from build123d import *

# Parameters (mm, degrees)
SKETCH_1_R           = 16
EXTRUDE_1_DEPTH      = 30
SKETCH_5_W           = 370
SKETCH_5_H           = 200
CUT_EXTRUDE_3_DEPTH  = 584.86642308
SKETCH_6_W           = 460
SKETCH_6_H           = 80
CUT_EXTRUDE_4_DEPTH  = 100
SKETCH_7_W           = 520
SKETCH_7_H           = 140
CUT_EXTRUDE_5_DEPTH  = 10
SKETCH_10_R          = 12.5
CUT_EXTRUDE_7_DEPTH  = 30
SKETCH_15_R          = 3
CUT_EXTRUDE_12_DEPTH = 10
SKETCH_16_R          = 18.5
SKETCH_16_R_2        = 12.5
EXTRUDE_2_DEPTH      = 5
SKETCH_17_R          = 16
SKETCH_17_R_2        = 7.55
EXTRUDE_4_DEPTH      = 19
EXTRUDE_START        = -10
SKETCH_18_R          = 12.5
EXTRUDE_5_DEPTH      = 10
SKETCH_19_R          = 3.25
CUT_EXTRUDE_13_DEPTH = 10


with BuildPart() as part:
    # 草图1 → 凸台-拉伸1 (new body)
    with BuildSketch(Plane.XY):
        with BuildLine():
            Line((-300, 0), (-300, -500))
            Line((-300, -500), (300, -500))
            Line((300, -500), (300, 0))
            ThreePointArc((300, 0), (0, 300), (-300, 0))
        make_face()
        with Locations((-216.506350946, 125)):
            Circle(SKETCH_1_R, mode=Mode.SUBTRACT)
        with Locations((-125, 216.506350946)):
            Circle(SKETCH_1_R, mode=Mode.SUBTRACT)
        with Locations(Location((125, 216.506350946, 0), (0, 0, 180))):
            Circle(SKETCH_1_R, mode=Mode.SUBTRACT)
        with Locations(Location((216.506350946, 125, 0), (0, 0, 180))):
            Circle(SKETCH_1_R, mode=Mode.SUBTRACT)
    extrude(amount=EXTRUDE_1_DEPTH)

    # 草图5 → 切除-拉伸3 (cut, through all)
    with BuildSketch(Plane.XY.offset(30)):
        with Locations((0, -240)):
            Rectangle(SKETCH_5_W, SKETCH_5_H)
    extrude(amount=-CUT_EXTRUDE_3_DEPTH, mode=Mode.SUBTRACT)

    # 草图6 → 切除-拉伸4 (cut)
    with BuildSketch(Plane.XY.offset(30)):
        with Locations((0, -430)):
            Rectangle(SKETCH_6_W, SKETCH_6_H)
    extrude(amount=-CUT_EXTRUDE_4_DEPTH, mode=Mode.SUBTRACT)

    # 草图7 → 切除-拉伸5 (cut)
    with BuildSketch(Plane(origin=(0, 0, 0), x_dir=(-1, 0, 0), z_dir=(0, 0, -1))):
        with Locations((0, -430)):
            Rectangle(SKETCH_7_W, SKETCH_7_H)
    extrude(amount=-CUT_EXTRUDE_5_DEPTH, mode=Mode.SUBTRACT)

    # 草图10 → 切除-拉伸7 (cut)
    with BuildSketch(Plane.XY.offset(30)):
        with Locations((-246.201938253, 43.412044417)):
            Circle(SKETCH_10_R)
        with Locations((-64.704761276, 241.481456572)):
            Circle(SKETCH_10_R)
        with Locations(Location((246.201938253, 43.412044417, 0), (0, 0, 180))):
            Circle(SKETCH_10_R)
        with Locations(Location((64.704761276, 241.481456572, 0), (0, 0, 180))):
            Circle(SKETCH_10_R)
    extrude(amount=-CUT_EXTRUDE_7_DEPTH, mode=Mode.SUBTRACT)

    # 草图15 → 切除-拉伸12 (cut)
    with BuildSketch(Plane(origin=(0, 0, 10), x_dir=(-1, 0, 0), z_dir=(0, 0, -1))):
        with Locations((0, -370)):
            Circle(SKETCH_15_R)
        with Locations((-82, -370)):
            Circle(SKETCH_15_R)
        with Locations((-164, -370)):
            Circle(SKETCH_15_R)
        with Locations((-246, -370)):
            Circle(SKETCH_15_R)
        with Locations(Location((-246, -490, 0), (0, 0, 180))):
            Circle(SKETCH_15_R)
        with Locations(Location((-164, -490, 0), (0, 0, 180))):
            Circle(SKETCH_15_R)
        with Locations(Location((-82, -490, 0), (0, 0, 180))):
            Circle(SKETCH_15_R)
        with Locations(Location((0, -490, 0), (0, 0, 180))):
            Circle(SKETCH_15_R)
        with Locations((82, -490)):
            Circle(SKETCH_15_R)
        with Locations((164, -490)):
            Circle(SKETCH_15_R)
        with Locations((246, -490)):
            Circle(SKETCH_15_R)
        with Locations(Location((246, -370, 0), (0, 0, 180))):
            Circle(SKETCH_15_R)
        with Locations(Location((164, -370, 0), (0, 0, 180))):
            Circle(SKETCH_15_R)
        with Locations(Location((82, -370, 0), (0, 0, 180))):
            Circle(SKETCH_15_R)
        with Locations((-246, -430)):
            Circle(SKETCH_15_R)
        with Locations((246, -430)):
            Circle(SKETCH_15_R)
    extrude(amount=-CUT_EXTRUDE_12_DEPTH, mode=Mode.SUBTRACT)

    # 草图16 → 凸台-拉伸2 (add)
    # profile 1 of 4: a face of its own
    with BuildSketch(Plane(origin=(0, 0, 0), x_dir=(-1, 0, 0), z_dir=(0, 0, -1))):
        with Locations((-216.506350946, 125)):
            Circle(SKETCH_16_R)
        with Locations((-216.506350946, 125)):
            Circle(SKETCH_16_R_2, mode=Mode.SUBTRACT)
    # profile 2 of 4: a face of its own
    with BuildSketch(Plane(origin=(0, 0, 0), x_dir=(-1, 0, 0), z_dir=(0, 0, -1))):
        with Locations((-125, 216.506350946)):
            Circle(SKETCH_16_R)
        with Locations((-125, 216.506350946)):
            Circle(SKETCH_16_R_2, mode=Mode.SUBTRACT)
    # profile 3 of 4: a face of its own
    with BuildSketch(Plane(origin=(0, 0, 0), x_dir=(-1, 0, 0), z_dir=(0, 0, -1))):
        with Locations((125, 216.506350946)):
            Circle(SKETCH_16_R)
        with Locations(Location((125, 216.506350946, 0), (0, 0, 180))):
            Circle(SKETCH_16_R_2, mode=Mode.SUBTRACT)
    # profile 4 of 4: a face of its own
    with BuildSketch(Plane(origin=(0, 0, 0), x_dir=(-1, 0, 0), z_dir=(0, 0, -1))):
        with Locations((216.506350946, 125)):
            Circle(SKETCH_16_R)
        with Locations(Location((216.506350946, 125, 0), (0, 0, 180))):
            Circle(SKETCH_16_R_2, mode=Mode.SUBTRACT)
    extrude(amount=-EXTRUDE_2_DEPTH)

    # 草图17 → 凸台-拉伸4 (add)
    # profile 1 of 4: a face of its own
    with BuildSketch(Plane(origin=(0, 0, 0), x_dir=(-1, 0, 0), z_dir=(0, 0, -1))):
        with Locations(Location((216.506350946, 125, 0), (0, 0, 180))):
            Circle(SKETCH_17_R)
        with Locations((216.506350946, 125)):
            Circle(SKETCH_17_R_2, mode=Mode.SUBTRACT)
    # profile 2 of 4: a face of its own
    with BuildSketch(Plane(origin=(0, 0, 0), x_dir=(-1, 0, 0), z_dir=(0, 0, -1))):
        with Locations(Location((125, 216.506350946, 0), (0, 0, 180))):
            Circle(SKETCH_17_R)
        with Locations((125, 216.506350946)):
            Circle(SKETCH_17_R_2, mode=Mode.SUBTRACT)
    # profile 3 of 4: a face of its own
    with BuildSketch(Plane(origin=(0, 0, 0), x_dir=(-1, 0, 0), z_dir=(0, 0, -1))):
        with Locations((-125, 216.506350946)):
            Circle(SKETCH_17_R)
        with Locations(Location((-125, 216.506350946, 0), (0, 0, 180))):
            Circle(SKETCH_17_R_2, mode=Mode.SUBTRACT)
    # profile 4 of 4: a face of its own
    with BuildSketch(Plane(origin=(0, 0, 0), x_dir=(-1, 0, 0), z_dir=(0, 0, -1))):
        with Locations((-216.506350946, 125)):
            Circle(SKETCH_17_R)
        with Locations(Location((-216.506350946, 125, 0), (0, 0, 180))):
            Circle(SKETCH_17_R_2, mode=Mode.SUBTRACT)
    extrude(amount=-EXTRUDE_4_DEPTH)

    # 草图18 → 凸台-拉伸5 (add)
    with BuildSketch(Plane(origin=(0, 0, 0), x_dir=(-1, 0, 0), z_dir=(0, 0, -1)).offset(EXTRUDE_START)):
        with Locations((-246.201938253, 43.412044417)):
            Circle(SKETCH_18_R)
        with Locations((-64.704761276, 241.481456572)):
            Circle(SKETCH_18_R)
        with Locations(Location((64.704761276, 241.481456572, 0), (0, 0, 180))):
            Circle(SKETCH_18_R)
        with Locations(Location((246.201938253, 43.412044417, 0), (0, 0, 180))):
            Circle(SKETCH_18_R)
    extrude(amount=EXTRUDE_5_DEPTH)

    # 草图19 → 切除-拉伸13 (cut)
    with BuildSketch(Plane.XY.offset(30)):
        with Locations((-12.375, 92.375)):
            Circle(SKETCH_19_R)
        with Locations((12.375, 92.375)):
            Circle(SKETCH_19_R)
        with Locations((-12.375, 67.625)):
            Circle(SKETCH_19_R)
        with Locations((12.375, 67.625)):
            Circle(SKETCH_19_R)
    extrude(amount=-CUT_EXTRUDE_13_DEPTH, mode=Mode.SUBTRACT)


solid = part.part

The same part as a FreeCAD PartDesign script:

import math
import FreeCAD as App
import Part
import Sketcher

V = App.Vector


def add_polygon(sketch, points):
    """Adds a closed chain of lines whose ends are joined by coincident constraints."""
    first, n = sketch.GeometryCount, len(points)
    for a, b in zip(points, points[1:] + points[:1]):
        sketch.addGeometry(Part.LineSegment(App.Vector(*a, 0), App.Vector(*b, 0)), False)
    for i in range(n):
        sketch.addConstraint(Sketcher.Constraint("Coincident", first + i, 2, first + (i + 1) % n, 1))

doc = App.newDocument("Part")
body = doc.addObject("PartDesign::Body", "Body")

# Sketch on XY plane
sketch1 = body.newObject("Sketcher::SketchObject", "Sketch")
sketch1.AttachmentSupport = (doc.getObject("XY_Plane"), [""])
sketch1.MapMode = "FlatFace"
sketch1.addGeometry(Part.LineSegment(V(-300, 0, 0), V(-300, -500, 0)), False)
sketch1.addGeometry(Part.LineSegment(V(-300, -500, 0), V(300, -500, 0)), False)
sketch1.addGeometry(Part.LineSegment(V(300, -500, 0), V(300, 0, 0)), False)
sketch1.addGeometry(Part.ArcOfCircle(Part.Circle(V(0, 0, 0), V(0, 0, 1), 300), math.radians(0), math.radians(180)), False)
sketch1.addGeometry(Part.Circle(V(-216.506351, 125, 0), V(0, 0, 1), 16), False)
sketch1.addGeometry(Part.Circle(V(216.506351, 125, 0), V(0, 0, 1), 16), False)
sketch1.addGeometry(Part.Circle(V(-125, 216.506351, 0), V(0, 0, 1), 16), False)
sketch1.addGeometry(Part.Circle(V(125, 216.506351, 0), V(0, 0, 1), 16), False)
sketch1.addConstraint(Sketcher.Constraint("Coincident", 0, 2, 1, 1))
sketch1.addConstraint(Sketcher.Constraint("Coincident", 1, 2, 2, 1))
sketch1.addConstraint(Sketcher.Constraint("Tangent", 2, 2, 3, 1))
sketch1.addConstraint(Sketcher.Constraint("Tangent", 3, 2, 0, 1))
sketch1.addConstraint(Sketcher.Constraint("Vertical", 0))
sketch1.addConstraint(Sketcher.Constraint("Horizontal", 1))
sketch1.addConstraint(Sketcher.Constraint("Vertical", 2))
sketch1.addConstraint(Sketcher.Constraint("Coincident", 3, 3, -1, 1))
sketch1.addConstraint(Sketcher.Constraint("Equal", 4, 5))
sketch1.addConstraint(Sketcher.Constraint("Equal", 5, 6))
sketch1.addConstraint(Sketcher.Constraint("Equal", 6, 7))
sketch1.addConstraint(Sketcher.Constraint("Symmetric", 4, 3, 5, 3, -2))
sketch1.addConstraint(Sketcher.Constraint("Symmetric", 6, 3, 7, 3, -2))
sketch1.addConstraint(Sketcher.Constraint("Diameter", 4, 32.0))
sketch1.addConstraint(Sketcher.Constraint("Radius", 3, 300.0))
sketch1.addConstraint(Sketcher.Constraint("DistanceY", 0, 2, 0, 1, 500.0))
sketch1.addConstraint(Sketcher.Constraint("DistanceY", -1, 1, 4, 3, 125.0))
sketch1.addConstraint(Sketcher.Constraint("DistanceX", 6, 3, -1, 1, 125.0))
sketch1.addConstraint(Sketcher.Constraint("DistanceX", 4, 3, 5, 3, 433.012702))
sketch1.addConstraint(Sketcher.Constraint("DistanceY", -1, 1, 6, 3, 216.506351))
pad1 = body.newObject("PartDesign::Pad", "Pad")
pad1.Profile = sketch1
pad1.Length = 30

# Sketch on XY plane
sketch2 = body.newObject("Sketcher::SketchObject", "Sketch001")
sketch2.AttachmentSupport = (doc.getObject("XY_Plane"), [""])
sketch2.MapMode = "FlatFace"
sketch2.AttachmentOffset = App.Placement(V(0, 0, 30), App.Rotation())
add_polygon(sketch2, [(-185, -140), (-185, -340), (185, -340), (185, -140)])  # lines 0-3
sketch2.addConstraint(Sketcher.Constraint("Vertical", 0))
sketch2.addConstraint(Sketcher.Constraint("Horizontal", 1))
sketch2.addConstraint(Sketcher.Constraint("Vertical", 2))
sketch2.addConstraint(Sketcher.Constraint("Horizontal", 3))
sketch2.addConstraint(Sketcher.Constraint("DistanceX", 1, 1, 1, 2, 370.0))
sketch2.addConstraint(Sketcher.Constraint("DistanceY", 0, 2, 0, 1, 200.0))
sketch2.addConstraint(Sketcher.Constraint("DistanceX", 0, 2, -1, 1, 185.0))
sketch2.addConstraint(Sketcher.Constraint("DistanceY", 0, 2, -1, 1, 340.0))
pocket1 = body.newObject("PartDesign::Pocket", "Pocket")
pocket1.Profile = sketch2
pocket1.Type = "ThroughAll"

# Sketch on XY plane
sketch3 = body.newObject("Sketcher::SketchObject", "Sketch002")
sketch3.AttachmentSupport = (doc.getObject("XY_Plane"), [""])
sketch3.MapMode = "FlatFace"
sketch3.AttachmentOffset = App.Placement(V(0, 0, 30), App.Rotation())
add_polygon(sketch3, [(-230, -390), (-230, -470), (230, -470), (230, -390)])  # lines 0-3
sketch3.addConstraint(Sketcher.Constraint("Vertical", 0))
sketch3.addConstraint(Sketcher.Constraint("Horizontal", 1))
sketch3.addConstraint(Sketcher.Constraint("Vertical", 2))
sketch3.addConstraint(Sketcher.Constraint("Horizontal", 3))
sketch3.addConstraint(Sketcher.Constraint("DistanceX", 1, 1, 1, 2, 460.0))
sketch3.addConstraint(Sketcher.Constraint("DistanceY", 0, 2, 0, 1, 80.0))
sketch3.addConstraint(Sketcher.Constraint("DistanceX", 0, 2, -1, 1, 230.0))
sketch3.addConstraint(Sketcher.Constraint("DistanceY", 0, 2, -1, 1, 470.0))
pocket2 = body.newObject("PartDesign::Pocket", "Pocket001")
pocket2.Profile = sketch3
pocket2.Length = 100

# Sketch on XY plane
sketch4 = body.newObject("Sketcher::SketchObject", "Sketch003")
sketch4.AttachmentSupport = (doc.getObject("XY_Plane"), [""])
sketch4.MapMode = "FlatFace"
add_polygon(sketch4, [(260, -360), (260, -500), (-260, -500), (-260, -360)])  # lines 0-3
sketch4.addConstraint(Sketcher.Constraint("Vertical", 0))
sketch4.addConstraint(Sketcher.Constraint("Horizontal", 1))
sketch4.addConstraint(Sketcher.Constraint("Vertical", 2))
sketch4.addConstraint(Sketcher.Constraint("Horizontal", 3))
sketch4.addConstraint(Sketcher.Constraint("DistanceX", 1, 2, 1, 1, 520.0))
sketch4.addConstraint(Sketcher.Constraint("DistanceY", 0, 2, 0, 1, 140.0))
sketch4.addConstraint(Sketcher.Constraint("DistanceX", -1, 1, 0, 2, 260.0))
sketch4.addConstraint(Sketcher.Constraint("DistanceY", 0, 2, -1, 1, 500.0))
pocket3 = body.newObject("PartDesign::Pocket", "Pocket002")
pocket3.Profile = sketch4
pocket3.Length = 10
pocket3.Reversed = True

# Sketch on XY plane
sketch5 = body.newObject("Sketcher::SketchObject", "Sketch004")
sketch5.AttachmentSupport = (doc.getObject("XY_Plane"), [""])
sketch5.MapMode = "FlatFace"
sketch5.AttachmentOffset = App.Placement(V(0, 0, 30), App.Rotation())
sketch5.addGeometry(Part.Circle(V(-246.201938, 43.412044, 0), V(0, 0, 1), 12.5), False)
sketch5.addGeometry(Part.Circle(V(-64.704761, 241.481457, 0), V(0, 0, 1), 12.5), False)
sketch5.addGeometry(Part.Circle(V(246.201938, 43.412044, 0), V(0, 0, 1), 12.5), False)
sketch5.addGeometry(Part.Circle(V(64.704761, 241.481457, 0), V(0, 0, 1), 12.5), False)
sketch5.addConstraint(Sketcher.Constraint("Equal", 0, 1))
sketch5.addConstraint(Sketcher.Constraint("Equal", 1, 2))
sketch5.addConstraint(Sketcher.Constraint("Equal", 2, 3))
sketch5.addConstraint(Sketcher.Constraint("Symmetric", 0, 3, 2, 3, -2))
sketch5.addConstraint(Sketcher.Constraint("Symmetric", 1, 3, 3, 3, -2))
sketch5.addConstraint(Sketcher.Constraint("Diameter", 0, 25.0))
sketch5.addConstraint(Sketcher.Constraint("DistanceX", 1, 3, 2, 3, 310.9067))
sketch5.addConstraint(Sketcher.Constraint("DistanceX", 0, 3, -1, 1, 246.201938))
sketch5.addConstraint(Sketcher.Constraint("DistanceY", -1, 1, 0, 3, 43.412044))
sketch5.addConstraint(Sketcher.Constraint("DistanceY", -1, 1, 1, 3, 241.481457))
pocket4 = body.newObject("PartDesign::Pocket", "Pocket003")
pocket4.Profile = sketch5
pocket4.Length = 30

# Sketch on XY plane
sketch6 = body.newObject("Sketcher::SketchObject", "Sketch005")
sketch6.AttachmentSupport = (doc.getObject("XY_Plane"), [""])
sketch6.MapMode = "FlatFace"
sketch6.AttachmentOffset = App.Placement(V(0, 0, 10), App.Rotation())
sketch6.addGeometry(Part.Circle(V(0, -370, 0), V(0, 0, 1), 3), False)
sketch6.addGeometry(Part.Circle(V(82, -370, 0), V(0, 0, 1), 3), False)
sketch6.addGeometry(Part.Circle(V(164, -370, 0), V(0, 0, 1), 3), False)
sketch6.addGeometry(Part.Circle(V(246, -370, 0), V(0, 0, 1), 3), False)
sketch6.addGeometry(Part.Circle(V(246, -490, 0), V(0, 0, 1), 3), False)
sketch6.addGeometry(Part.Circle(V(164, -490, 0), V(0, 0, 1), 3), False)
sketch6.addGeometry(Part.Circle(V(82, -490, 0), V(0, 0, 1), 3), False)
sketch6.addGeometry(Part.Circle(V(0, -490, 0), V(0, 0, 1), 3), False)
sketch6.addGeometry(Part.Circle(V(-82, -490, 0), V(0, 0, 1), 3), False)
sketch6.addGeometry(Part.Circle(V(-164, -490, 0), V(0, 0, 1), 3), False)
sketch6.addGeometry(Part.Circle(V(-246, -490, 0), V(0, 0, 1), 3), False)
sketch6.addGeometry(Part.Circle(V(-246, -370, 0), V(0, 0, 1), 3), False)
sketch6.addGeometry(Part.Circle(V(-164, -370, 0), V(0, 0, 1), 3), False)
sketch6.addGeometry(Part.Circle(V(-82, -370, 0), V(0, 0, 1), 3), False)
sketch6.addGeometry(Part.Circle(V(246, -430, 0), V(0, 0, 1), 3), False)
sketch6.addGeometry(Part.Circle(V(-246, -430, 0), V(0, 0, 1), 3), False)
sketch6.addConstraint(Sketcher.Constraint("Equal", 0, 1))
sketch6.addConstraint(Sketcher.Constraint("Equal", 1, 2))
sketch6.addConstraint(Sketcher.Constraint("Equal", 2, 3))
sketch6.addConstraint(Sketcher.Constraint("Equal", 3, 4))
sketch6.addConstraint(Sketcher.Constraint("Equal", 4, 5))
sketch6.addConstraint(Sketcher.Constraint("Equal", 5, 6))
sketch6.addConstraint(Sketcher.Constraint("Equal", 6, 7))
sketch6.addConstraint(Sketcher.Constraint("Equal", 7, 8))
sketch6.addConstraint(Sketcher.Constraint("Equal", 8, 9))
sketch6.addConstraint(Sketcher.Constraint("Equal", 9, 10))
sketch6.addConstraint(Sketcher.Constraint("Equal", 10, 11))
sketch6.addConstraint(Sketcher.Constraint("Equal", 11, 12))
sketch6.addConstraint(Sketcher.Constraint("Equal", 12, 13))
sketch6.addConstraint(Sketcher.Constraint("Equal", 13, 14))
sketch6.addConstraint(Sketcher.Constraint("Equal", 14, 15))
sketch6.addConstraint(Sketcher.Constraint("Symmetric", 6, 3, 8, 3, -2))
sketch6.addConstraint(Sketcher.Constraint("Symmetric", 5, 3, 9, 3, -2))
sketch6.addConstraint(Sketcher.Constraint("Symmetric", 4, 3, 10, 3, -2))
sketch6.addConstraint(Sketcher.Constraint("Symmetric", 3, 3, 11, 3, -2))
sketch6.addConstraint(Sketcher.Constraint("Symmetric", 2, 3, 12, 3, -2))
sketch6.addConstraint(Sketcher.Constraint("Symmetric", 1, 3, 13, 3, -2))
sketch6.addConstraint(Sketcher.Constraint("Symmetric", 14, 3, 15, 3, -2))
sketch6.addConstraint(Sketcher.Constraint("PointOnObject", 0, 3, -2))
sketch6.addConstraint(Sketcher.Constraint("PointOnObject", 7, 3, -2))
sketch6.addConstraint(Sketcher.Constraint("Horizontal", 0, 3, 1, 3))
sketch6.addConstraint(Sketcher.Constraint("Horizontal", 1, 3, 2, 3))
sketch6.addConstraint(Sketcher.Constraint("Horizontal", 2, 3, 3, 3))
sketch6.addConstraint(Sketcher.Constraint("Horizontal", 4, 3, 5, 3))
sketch6.addConstraint(Sketcher.Constraint("Horizontal", 5, 3, 6, 3))
sketch6.addConstraint(Sketcher.Constraint("Horizontal", 6, 3, 7, 3))
sketch6.addConstraint(Sketcher.Constraint("Vertical", 3, 3, 4, 3))
sketch6.addConstraint(Sketcher.Constraint("Vertical", 2, 3, 5, 3))
sketch6.addConstraint(Sketcher.Constraint("Vertical", 1, 3, 6, 3))
sketch6.addConstraint(Sketcher.Constraint("Vertical", 4, 3, 14, 3))
sketch6.addConstraint(Sketcher.Constraint("Diameter", 0, 6.0))
sketch6.addConstraint(Sketcher.Constraint("DistanceY", 0, 3, -1, 1, 370.0))
sketch6.addConstraint(Sketcher.Constraint("DistanceX", -1, 1, 1, 3, 82.0))
sketch6.addConstraint(Sketcher.Constraint("DistanceX", -1, 1, 2, 3, 164.0))
sketch6.addConstraint(Sketcher.Constraint("DistanceX", -1, 1, 3, 3, 246.0))
sketch6.addConstraint(Sketcher.Constraint("DistanceY", 4, 3, -1, 1, 490.0))
sketch6.addConstraint(Sketcher.Constraint("DistanceY", 14, 3, -1, 1, 430.0))
pocket5 = body.newObject("PartDesign::Pocket", "Pocket004")
pocket5.Profile = sketch6
pocket5.Length = 10
pocket5.Reversed = True

# Sketch on XY plane
sketch7 = body.newObject("Sketcher::SketchObject", "Sketch006")
sketch7.AttachmentSupport = (doc.getObject("XY_Plane"), [""])
sketch7.MapMode = "FlatFace"
sketch7.addGeometry(Part.Circle(V(216.506351, 125, 0), V(0, 0, 1), 18.5), False)
sketch7.addGeometry(Part.Circle(V(216.506351, 125, 0), V(0, 0, 1), 12.5), False)
sketch7.addGeometry(Part.Circle(V(125, 216.506351, 0), V(0, 0, 1), 18.5), False)
sketch7.addGeometry(Part.Circle(V(125, 216.506351, 0), V(0, 0, 1), 12.5), False)
sketch7.addGeometry(Part.Circle(V(-125, 216.506351, 0), V(0, 0, 1), 18.5), False)
sketch7.addGeometry(Part.Circle(V(-125, 216.506351, 0), V(0, 0, 1), 12.5), False)
sketch7.addGeometry(Part.Circle(V(-216.506351, 125, 0), V(0, 0, 1), 18.5), False)
sketch7.addGeometry(Part.Circle(V(-216.506351, 125, 0), V(0, 0, 1), 12.5), False)
sketch7.addConstraint(Sketcher.Constraint("Coincident", 1, 3, 0, 3))
sketch7.addConstraint(Sketcher.Constraint("Coincident", 3, 3, 2, 3))
sketch7.addConstraint(Sketcher.Constraint("Coincident", 5, 3, 4, 3))
sketch7.addConstraint(Sketcher.Constraint("Coincident", 7, 3, 6, 3))
sketch7.addConstraint(Sketcher.Constraint("Equal", 0, 2))
sketch7.addConstraint(Sketcher.Constraint("Equal", 1, 3))
sketch7.addConstraint(Sketcher.Constraint("Equal", 2, 4))
sketch7.addConstraint(Sketcher.Constraint("Equal", 3, 5))
sketch7.addConstraint(Sketcher.Constraint("Equal", 4, 6))
sketch7.addConstraint(Sketcher.Constraint("Equal", 5, 7))
sketch7.addConstraint(Sketcher.Constraint("Symmetric", 2, 3, 4, 3, -2))
sketch7.addConstraint(Sketcher.Constraint("Symmetric", 0, 3, 6, 3, -2))
sketch7.addConstraint(Sketcher.Constraint("Diameter", 0, 37.0))
sketch7.addConstraint(Sketcher.Constraint("Diameter", 1, 25.0))
sketch7.addConstraint(Sketcher.Constraint("DistanceY", -1, 1, 0, 3, 125.0))
sketch7.addConstraint(Sketcher.Constraint("DistanceX", -1, 1, 2, 3, 125.0))
sketch7.addConstraint(Sketcher.Constraint("DistanceX", 6, 3, 0, 3, 433.012702))
sketch7.addConstraint(Sketcher.Constraint("DistanceY", -1, 1, 2, 3, 216.506351))
pad2 = body.newObject("PartDesign::Pad", "Pad001")
pad2.Profile = sketch7
pad2.Length = 5

# Sketch on XY plane
sketch8 = body.newObject("Sketcher::SketchObject", "Sketch007")
sketch8.AttachmentSupport = (doc.getObject("XY_Plane"), [""])
sketch8.MapMode = "FlatFace"
sketch8.addGeometry(Part.Circle(V(-216.506351, 125, 0), V(0, 0, 1), 16), False)
sketch8.addGeometry(Part.Circle(V(-216.506351, 125, 0), V(0, 0, 1), 7.55), False)
sketch8.addGeometry(Part.Circle(V(-125, 216.506351, 0), V(0, 0, 1), 16), False)
sketch8.addGeometry(Part.Circle(V(-125, 216.506351, 0), V(0, 0, 1), 7.55), False)
sketch8.addGeometry(Part.Circle(V(125, 216.506351, 0), V(0, 0, 1), 16), False)
sketch8.addGeometry(Part.Circle(V(125, 216.506351, 0), V(0, 0, 1), 7.55), False)
sketch8.addGeometry(Part.Circle(V(216.506351, 125, 0), V(0, 0, 1), 16), False)
sketch8.addGeometry(Part.Circle(V(216.506351, 125, 0), V(0, 0, 1), 7.55), False)
sketch8.addConstraint(Sketcher.Constraint("Coincident", 1, 3, 0, 3))
sketch8.addConstraint(Sketcher.Constraint("Coincident", 3, 3, 2, 3))
sketch8.addConstraint(Sketcher.Constraint("Coincident", 5, 3, 4, 3))
sketch8.addConstraint(Sketcher.Constraint("Coincident", 7, 3, 6, 3))
sketch8.addConstraint(Sketcher.Constraint("Equal", 0, 2))
sketch8.addConstraint(Sketcher.Constraint("Equal", 1, 3))
sketch8.addConstraint(Sketcher.Constraint("Equal", 2, 4))
sketch8.addConstraint(Sketcher.Constraint("Equal", 3, 5))
sketch8.addConstraint(Sketcher.Constraint("Equal", 4, 6))
sketch8.addConstraint(Sketcher.Constraint("Equal", 5, 7))
sketch8.addConstraint(Sketcher.Constraint("Symmetric", 2, 3, 4, 3, -2))
sketch8.addConstraint(Sketcher.Constraint("Symmetric", 0, 3, 6, 3, -2))
sketch8.addConstraint(Sketcher.Constraint("Diameter", 0, 32.0))
sketch8.addConstraint(Sketcher.Constraint("Diameter", 1, 15.1))
sketch8.addConstraint(Sketcher.Constraint("DistanceY", -1, 1, 0, 3, 125.0))
sketch8.addConstraint(Sketcher.Constraint("DistanceX", 2, 3, -1, 1, 125.0))
sketch8.addConstraint(Sketcher.Constraint("DistanceX", 0, 3, 6, 3, 433.012702))
sketch8.addConstraint(Sketcher.Constraint("DistanceY", -1, 1, 2, 3, 216.506351))
pad3 = body.newObject("PartDesign::Pad", "Pad002")
pad3.Profile = sketch8
pad3.Length = 19

# Sketch on XY plane
sketch9 = body.newObject("Sketcher::SketchObject", "Sketch008")
sketch9.AttachmentSupport = (doc.getObject("XY_Plane"), [""])
sketch9.MapMode = "FlatFace"
sketch9.AttachmentOffset = App.Placement(V(0, 0, 10), App.Rotation())
sketch9.addGeometry(Part.Circle(V(246.201938, 43.412044, 0), V(0, 0, 1), 12.5), False)
sketch9.addGeometry(Part.Circle(V(64.704761, 241.481457, 0), V(0, 0, 1), 12.5), False)
sketch9.addGeometry(Part.Circle(V(-64.704761, 241.481457, 0), V(0, 0, 1), 12.5), False)
sketch9.addGeometry(Part.Circle(V(-246.201938, 43.412044, 0), V(0, 0, 1), 12.5), False)
sketch9.addConstraint(Sketcher.Constraint("Equal", 0, 1))
sketch9.addConstraint(Sketcher.Constraint("Equal", 1, 2))
sketch9.addConstraint(Sketcher.Constraint("Equal", 2, 3))
sketch9.addConstraint(Sketcher.Constraint("Symmetric", 1, 3, 2, 3, -2))
sketch9.addConstraint(Sketcher.Constraint("Symmetric", 0, 3, 3, 3, -2))
sketch9.addConstraint(Sketcher.Constraint("Diameter", 0, 25.0))
sketch9.addConstraint(Sketcher.Constraint("DistanceX", 2, 3, 0, 3, 310.9067))
sketch9.addConstraint(Sketcher.Constraint("DistanceX", -1, 1, 0, 3, 246.201938))
sketch9.addConstraint(Sketcher.Constraint("DistanceY", -1, 1, 0, 3, 43.412044))
sketch9.addConstraint(Sketcher.Constraint("DistanceY", -1, 1, 1, 3, 241.481457))
pad4 = body.newObject("PartDesign::Pad", "Pad003")
pad4.Profile = sketch9
pad4.Length = 10
pad4.Reversed = True

# Sketch on XY plane
sketch10 = body.newObject("Sketcher::SketchObject", "Sketch009")
sketch10.AttachmentSupport = (doc.getObject("XY_Plane"), [""])
sketch10.MapMode = "FlatFace"
sketch10.AttachmentOffset = App.Placement(V(0, 0, 30), App.Rotation())
sketch10.addGeometry(Part.Circle(V(-12.375, 92.375, 0), V(0, 0, 1), 3.25), False)
sketch10.addGeometry(Part.Circle(V(12.375, 92.375, 0), V(0, 0, 1), 3.25), False)
sketch10.addGeometry(Part.Circle(V(-12.375, 67.625, 0), V(0, 0, 1), 3.25), False)
sketch10.addGeometry(Part.Circle(V(12.375, 67.625, 0), V(0, 0, 1), 3.25), False)
sketch10.addConstraint(Sketcher.Constraint("Equal", 0, 1))
sketch10.addConstraint(Sketcher.Constraint("Equal", 1, 2))
sketch10.addConstraint(Sketcher.Constraint("Equal", 2, 3))
sketch10.addConstraint(Sketcher.Constraint("Symmetric", 0, 3, 1, 3, -2))
sketch10.addConstraint(Sketcher.Constraint("Symmetric", 2, 3, 3, 3, -2))
sketch10.addConstraint(Sketcher.Constraint("Vertical", 0, 3, 2, 3))
sketch10.addConstraint(Sketcher.Constraint("Diameter", 0, 6.5))
sketch10.addConstraint(Sketcher.Constraint("DistanceX", 0, 3, 1, 3, 24.75))
sketch10.addConstraint(Sketcher.Constraint("DistanceY", 2, 3, 0, 3, 24.75))
sketch10.addConstraint(Sketcher.Constraint("DistanceY", -1, 1, 0, 3, 92.375))
pocket6 = body.newObject("PartDesign::Pocket", "Pocket005")
pocket6.Profile = sketch10
pocket6.Length = 10

doc.recompute()
